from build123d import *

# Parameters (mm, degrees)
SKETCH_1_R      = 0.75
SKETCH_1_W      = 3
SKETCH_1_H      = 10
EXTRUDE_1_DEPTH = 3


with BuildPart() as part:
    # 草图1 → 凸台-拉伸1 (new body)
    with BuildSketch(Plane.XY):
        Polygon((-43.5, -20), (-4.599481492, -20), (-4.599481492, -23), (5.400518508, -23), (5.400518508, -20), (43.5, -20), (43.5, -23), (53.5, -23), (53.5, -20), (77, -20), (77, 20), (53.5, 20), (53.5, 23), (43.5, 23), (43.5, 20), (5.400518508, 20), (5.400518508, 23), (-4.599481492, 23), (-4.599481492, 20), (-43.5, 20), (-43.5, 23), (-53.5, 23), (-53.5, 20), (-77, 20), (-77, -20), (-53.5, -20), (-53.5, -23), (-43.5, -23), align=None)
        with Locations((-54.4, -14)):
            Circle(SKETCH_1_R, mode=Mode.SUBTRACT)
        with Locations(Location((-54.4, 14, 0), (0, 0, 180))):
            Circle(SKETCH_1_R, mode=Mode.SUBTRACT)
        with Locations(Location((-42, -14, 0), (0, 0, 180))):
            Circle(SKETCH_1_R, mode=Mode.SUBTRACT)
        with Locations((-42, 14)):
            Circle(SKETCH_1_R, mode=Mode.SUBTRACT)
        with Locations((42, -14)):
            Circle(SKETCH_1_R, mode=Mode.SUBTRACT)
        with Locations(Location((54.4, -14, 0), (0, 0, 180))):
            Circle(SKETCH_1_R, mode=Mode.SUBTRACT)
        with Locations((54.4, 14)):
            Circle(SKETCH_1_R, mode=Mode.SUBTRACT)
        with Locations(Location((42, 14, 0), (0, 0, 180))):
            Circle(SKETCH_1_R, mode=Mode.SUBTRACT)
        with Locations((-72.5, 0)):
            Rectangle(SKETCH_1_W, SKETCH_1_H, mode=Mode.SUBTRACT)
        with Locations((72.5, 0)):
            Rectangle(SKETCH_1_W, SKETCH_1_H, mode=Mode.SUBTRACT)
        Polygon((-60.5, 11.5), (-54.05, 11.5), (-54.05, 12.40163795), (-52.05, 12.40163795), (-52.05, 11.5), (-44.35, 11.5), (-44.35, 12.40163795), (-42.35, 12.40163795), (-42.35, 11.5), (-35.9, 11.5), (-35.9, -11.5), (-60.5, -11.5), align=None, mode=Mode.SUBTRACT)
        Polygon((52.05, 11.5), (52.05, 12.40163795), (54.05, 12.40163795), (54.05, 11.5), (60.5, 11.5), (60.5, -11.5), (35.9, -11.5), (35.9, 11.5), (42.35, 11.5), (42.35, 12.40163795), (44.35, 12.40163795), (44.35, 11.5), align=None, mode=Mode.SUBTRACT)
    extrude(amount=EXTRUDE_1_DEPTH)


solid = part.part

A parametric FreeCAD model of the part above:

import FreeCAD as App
import Part
import Sketcher
Q = App.Units.Quantity


def add_polygon(sketch, points):
    """Adds a closed chain of lines whose ends are joined by coincident constraints."""
    first, n = sketch.GeometryCount, len(points)
    for a, b in zip(points, points[1:] + points[:1]):
        sketch.addGeometry(Part.LineSegment(App.Vector(*a, 0), App.Vector(*b, 0)), False)
    for i in range(n):
        sketch.addConstraint(Sketcher.Constraint("Coincident", first + i, 2, first + (i + 1) % n, 1))

doc = App.newDocument("Part")
body = doc.addObject("PartDesign::Body", "Body")

# Sketch on XY plane
sketch1 = doc.addObject("Sketcher::SketchObject", "Sketch")
body.addObject(sketch1)
sketch1.AttachmentSupport = (doc.XY_Plane, [""])
sketch1.MapMode = "FlatFace"
add_polygon(sketch1, [(-43.5, -20), (-4.6, -20), (-4.6, -23), (5.4, -23), (5.4, -20), (43.5, -20), (43.5, -23), (53.5, -23), (53.5, -20), (77, -20), (77, 20), (53.5, 20), (53.5, 23), (43.5, 23), (43.5, 20), (5.4, 20), (5.4, 23), (-4.6, 23), (-4.6, 20), (-43.5, 20), (-43.5, 23), (-53.5, 23), (-53.5, 20), (-77, 20), (-77, -20), (-53.5, -20), (-53.5, -23), (-43.5, -23)])  # lines 0-27
sketch1.addGeometry(Part.Circle(App.Vector(-54.4, -14, 0), App.Vector(0, 0, 1), 0.8), False)  # 28
sketch1.addGeometry(Part.Circle(App.Vector(-42, -14, 0), App.Vector(0, 0, 1), 0.8), False)  # 29
sketch1.addGeometry(Part.Circle(App.Vector(42, -14, 0), App.Vector(0, 0, 1), 0.8), False)  # 30
sketch1.addGeometry(Part.Circle(App.Vector(54.4, -14, 0), App.Vector(0, 0, 1), 0.8), False)  # 31
add_polygon(sketch1, [(-71, -5), (-74, -5), (-74, 5), (-71, 5)])  # lines 32-35
add_polygon(sketch1, [(-60.5, -11.5), (-60.5, 11.5), (-54, 11.5), (-54, 12.4), (-52, 12.4), (-52, 11.5), (-44.4, 11.5), (-44.4, 12.4), (-42.4, 12.4), (-42.4, 11.5), (-35.9, 11.5), (-35.9, -11.5)])  # lines 36-47
sketch1.addGeometry(Part.Circle(App.Vector(-54.4, 14, 0), App.Vector(0, 0, 1), 0.8), False)  # 48
sketch1.addGeometry(Part.Circle(App.Vector(-42, 14, 0), App.Vector(0, 0, 1), 0.8), False)  # 49
add_polygon(sketch1, [(44.4, 11.5), (52, 11.5), (52, 12.4), (54, 12.4), (54, 11.5), (60.5, 11.5), (60.5, -11.5), (35.9, -11.5), (35.9, 11.5), (42.4, 11.5), (42.4, 12.4), (44.4, 12.4)])  # lines 50-61
add_polygon(sketch1, [(74, -5), (71, -5), (71, 5), (74, 5)])  # lines 62-65
sketch1.addGeometry(Part.Circle(App.Vector(42, 14, 0), App.Vector(0, 0, 1), 0.8), False)  # 66
sketch1.addGeometry(Part.Circle(App.Vector(54.4, 14, 0), App.Vector(0, 0, 1), 0.8), False)  # 67
sketch1.addConstraint(Sketcher.Constraint("Horizontal", 0))
sketch1.addConstraint(Sketcher.Constraint("Vertical", 1))
sketch1.addConstraint(Sketcher.Constraint("Horizontal", 2))
sketch1.addConstraint(Sketcher.Constraint("Vertical", 3))
sketch1.addConstraint(Sketcher.Constraint("Horizontal", 4))
sketch1.addConstraint(Sketcher.Constraint("Vertical", 5))
sketch1.addConstraint(Sketcher.Constraint("Horizontal", 6))
sketch1.addConstraint(Sketcher.Constraint("Vertical", 7))
sketch1.addConstraint(Sketcher.Constraint("Horizontal", 8))
sketch1.addConstraint(Sketcher.Constraint("Vertical", 9))
sketch1.addConstraint(Sketcher.Constraint("Horizontal", 10))
sketch1.addConstraint(Sketcher.Constraint("Vertical", 11))
sketch1.addConstraint(Sketcher.Constraint("Horizontal", 12))
sketch1.addConstraint(Sketcher.Constraint("Vertical", 13))
sketch1.addConstraint(Sketcher.Constraint("Horizontal", 14))
sketch1.addConstraint(Sketcher.Constraint("Vertical", 15))
sketch1.addConstraint(Sketcher.Constraint("Horizontal", 16))
sketch1.addConstraint(Sketcher.Constraint("Vertical", 17))
sketch1.addConstraint(Sketcher.Constraint("Horizontal", 18))
sketch1.addConstraint(Sketcher.Constraint("Vertical", 19))
sketch1.addConstraint(Sketcher.Constraint("Horizontal", 20))
sketch1.addConstraint(Sketcher.Constraint("Vertical", 21))
sketch1.addConstraint(Sketcher.Constraint("Horizontal", 22))
sketch1.addConstraint(Sketcher.Constraint("Vertical", 23))
sketch1.addConstraint(Sketcher.Constraint("Horizontal", 24))
sketch1.addConstraint(Sketcher.Constraint("Vertical", 25))
sketch1.addConstraint(Sketcher.Constraint("Horizontal", 26))
sketch1.addConstraint(Sketcher.Constraint("Vertical", 27))
sketch1.addConstraint(Sketcher.Constraint("Horizontal", 32))
sketch1.addConstraint(Sketcher.Constraint("Vertical", 33))
sketch1.addConstraint(Sketcher.Constraint("Horizontal", 34))
sketch1.addConstraint(Sketcher.Constraint("Vertical", 35))
sketch1.addConstraint(Sketcher.Constraint("Vertical", 36))
sketch1.addConstraint(Sketcher.Constraint("Horizontal", 37))
sketch1.addConstraint(Sketcher.Constraint("Vertical", 38))
sketch1.addConstraint(Sketcher.Constraint("Horizontal", 39))
sketch1.addConstraint(Sketcher.Constraint("Vertical", 40))
sketch1.addConstraint(Sketcher.Constraint("Horizontal", 41))
sketch1.addConstraint(Sketcher.Constraint("Vertical", 42))
sketch1.addConstraint(Sketcher.Constraint("Horizontal", 43))
sketch1.addConstraint(Sketcher.Constraint("Vertical", 44))
sketch1.addConstraint(Sketcher.Constraint("Horizontal", 45))
sketch1.addConstraint(Sketcher.Constraint("Vertical", 46))
sketch1.addConstraint(Sketcher.Constraint("Horizontal", 47))
sketch1.addConstraint(Sketcher.Constraint("Horizontal", 50))
sketch1.addConstraint(Sketcher.Constraint("Vertical", 51))
sketch1.addConstraint(Sketcher.Constraint("Horizontal", 52))
sketch1.addConstraint(Sketcher.Constraint("Vertical", 53))
sketch1.addConstraint(Sketcher.Constraint("Horizontal", 54))
sketch1.addConstraint(Sketcher.Constraint("Vertical", 55))
sketch1.addConstraint(Sketcher.Constraint("Horizontal", 56))
sketch1.addConstraint(Sketcher.Constraint("Vertical", 57))
sketch1.addConstraint(Sketcher.Constraint("Horizontal", 58))
sketch1.addConstraint(Sketcher.Constraint("Vertical", 59))
sketch1.addConstraint(Sketcher.Constraint("Horizontal", 60))
sketch1.addConstraint(Sketcher.Constraint("Vertical", 61))
sketch1.addConstraint(Sketcher.Constraint("Horizontal", 62))
sketch1.addConstraint(Sketcher.Constraint("Vertical", 63))
sketch1.addConstraint(Sketcher.Constraint("Horizontal", 64))
sketch1.addConstraint(Sketcher.Constraint("Vertical", 65))
sketch1.addConstraint(Sketcher.Constraint("Equal", 28, 29))
sketch1.addConstraint(Sketcher.Constraint("Equal", 29, 30))
sketch1.addConstraint(Sketcher.Constraint("Equal", 30, 31))
sketch1.addConstraint(Sketcher.Constraint("Equal", 31, 48))
sketch1.addConstraint(Sketcher.Constraint("Equal", 48, 49))
sketch1.addConstraint(Sketcher.Constraint("Equal", 49, 66))
sketch1.addConstraint(Sketcher.Constraint("Equal", 66, 67))
sketch1.addConstraint(Sketcher.Constraint("Symmetric", 31, 3, 48, 3, -1, 1))
sketch1.addConstraint(Sketcher.Constraint("Symmetric", 30, 3, 49, 3, -1, 1))
sketch1.addConstraint(Sketcher.Constraint("Symmetric", 29, 3, 66, 3, -1, 1))
sketch1.addConstraint(Sketcher.Constraint("Symmetric", 28, 3, 67, 3, -1, 1))
sketch1.addConstraint(Sketcher.Constraint("Symmetric", 4, 2, 18, 2, -1, 1))
sketch1.addConstraint(Sketcher.Constraint("Symmetric", 6, 2, 20, 2, -1, 1))
sketch1.addConstraint(Sketcher.Constraint("Symmetric", 8, 2, 22, 2, -1, 1))
sketch1.addConstraint(Sketcher.Constraint("Symmetric", 10, 2, 24, 2, -1, 1))
sketch1.addConstraint(Sketcher.Constraint("Symmetric", 12, 2, 26, 2, -1, 1))
sketch1.addConstraint(Sketcher.Constraint("Symmetric", 47, 2, 54, 2, -1, 1))
sketch1.addConstraint(Sketcher.Constraint("Symmetric", 45, 2, 56, 2, -1, 1))
sketch1.addConstraint(Sketcher.Constraint("Symmetric", 34, 2, 62, 2, -1, 1))
sketch1.addConstraint(Sketcher.Constraint("Symmetric", 32, 2, 64, 2, -1, 1))
sketch1.addConstraint(Sketcher.Constraint("Symmetric", 29, 3, 30, 3, -2))
sketch1.addConstraint(Sketcher.Constraint("Symmetric", 28, 3, 31, 3, -2))
sketch1.addConstraint(Sketcher.Constraint("Symmetric", 13, 2, 18, 2, -2))
sketch1.addConstraint(Sketcher.Constraint("Symmetric", 11, 2, 20, 2, -2))
sketch1.addConstraint(Sketcher.Constraint("Symmetric", 40, 2, 50, 2, -2))
sketch1.addConstraint(Sketcher.Constraint("Symmetric", 38, 2, 52, 2, -2))
sketch1.addConstraint(Sketcher.Constraint("Symmetric", 44, 2, 58, 2, -2))
sketch1.addConstraint(Sketcher.Constraint("Symmetric", 42, 2, 60, 2, -2))
sketch1.addConstraint(Sketcher.Constraint("Symmetric", 2, 2, 15, 2, -1))
sketch1.addConstraint(Sketcher.Constraint("Symmetric", 0, 2, 17, 2, -1))
sketch1.addConstraint(Sketcher.Constraint("Horizontal", 28, 3, 29, 3))
sketch1.addConstraint(Sketcher.Constraint("Horizontal", 2, 2, 5, 2))
sketch1.addConstraint(Sketcher.Constraint("Horizontal", 4, 2, 7, 2))
sketch1.addConstraint(Sketcher.Constraint("Horizontal", 10, 2, 13, 2))
sketch1.addConstraint(Sketcher.Constraint("Horizontal", 37, 2, 40, 2))
sketch1.addConstraint(Sketcher.Constraint("Horizontal", 39, 2, 42, 2))
sketch1.addConstraint(Sketcher.Constraint("Horizontal", 41, 2, 44, 2))
sketch1.addConstraint(Sketcher.Constraint("Horizontal", 50, 2, 53, 2))
sketch1.addConstraint(Sketcher.Constraint("Horizontal", 35, 2, 62, 2))
sketch1.addConstraint(Sketcher.Constraint("Equal", 2, 6))
sketch1.addConstraint(Sketcher.Constraint("Equal", 39, 43))
sketch1.addConstraint(Sketcher.Constraint("Equal", 37, 45))
sketch1.addConstraint(Sketcher.Constraint("Equal", 64, 1))
sketch1.addConstraint(Sketcher.Constraint("Equal", 26, 33))
sketch1.addConstraint(Sketcher.Constraint("Diameter", 28, Q("1.5 mm")))
sketch1.addConstraint(Sketcher.Constraint("DistanceX", 2, 1, 2, 2, Q("10 mm")))
sketch1.addConstraint(Sketcher.Constraint("DistanceX", 32, 2, 32, 1, Q("3 mm")))
sketch1.addConstraint(Sketcher.Constraint("DistanceX", 39, 1, 39, 2, Q("2 mm")))
sketch1.addConstraint(Sketcher.Constraint("DistanceY", 9, 1, 9, 2, Q("40 mm")))
sketch1.addConstraint(Sketcher.Constraint("DistanceY", 36, 1, 36, 2, Q("23 mm")))
sketch1.addConstraint(Sketcher.Constraint("DistanceX", 8, 1, 8, 2, Q("23.5 mm")))
sketch1.addConstraint(Sketcher.Constraint("DistanceX", 41, 1, 41, 2, Q("7.7 mm")))
sketch1.addConstraint(Sketcher.Constraint("DistanceX", 47, 2, 47, 1, Q("24.6 mm")))
sketch1.addConstraint(Sketcher.Constraint("DistanceY", 28, 3, -1, 1, Q("14 mm")))
sketch1.addConstraint(Sketcher.Constraint("DistanceX", 29, 3, -1, 1, Q("42 mm")))
sketch1.addConstraint(Sketcher.Constraint("DistanceX", -1, 1, 8, 2, Q("77 mm")))
sketch1.addConstraint(Sketcher.Constraint("DistanceX", 32, 2, -1, 1, Q("74 mm")))
sketch1.addConstraint(Sketcher.Constraint("DistanceX", 28, 3, -1, 1, Q("54.4 mm")))
sketch1.addConstraint(Sketcher.Constraint("DistanceX", 36, 2, -1, 1, Q("60.5 mm")))
sketch1.addConstraint(Sketcher.Constraint("DistanceX", 0, 1, 0, 2, Q("38.900519 mm")))
sketch1.addConstraint(Sketcher.Constraint("DistanceY", 38, 1, 38, 2, Q("0.901638 mm")))
pad1 = doc.addObject("PartDesign::Pad", "Pad")
body.addObject(pad1)
pad1.Profile = sketch1
pad1.Length = 3

doc.recompute()
